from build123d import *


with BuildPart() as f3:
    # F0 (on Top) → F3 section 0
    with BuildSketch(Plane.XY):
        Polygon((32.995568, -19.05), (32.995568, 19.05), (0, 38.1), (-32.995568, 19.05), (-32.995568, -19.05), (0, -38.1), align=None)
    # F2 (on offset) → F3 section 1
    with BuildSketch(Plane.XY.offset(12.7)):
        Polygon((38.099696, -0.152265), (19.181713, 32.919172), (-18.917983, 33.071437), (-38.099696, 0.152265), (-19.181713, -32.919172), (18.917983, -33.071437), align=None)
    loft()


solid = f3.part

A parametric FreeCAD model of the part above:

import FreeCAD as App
import Part
import Sketcher
Q = App.Units.Quantity


def add_polygon(sketch, points):
    """Adds a closed chain of lines whose ends are joined by coincident constraints."""
    first, n = sketch.GeometryCount, len(points)
    for a, b in zip(points, points[1:] + points[:1]):
        sketch.addGeometry(Part.LineSegment(App.Vector(*a, 0), App.Vector(*b, 0)), False)
    for i in range(n):
        sketch.addConstraint(Sketcher.Constraint("Coincident", first + i, 2, first + (i + 1) % n, 1))

doc = App.newDocument("Part")
body = doc.addObject("PartDesign::Body", "Body")

# Sketch on XY plane
sketch1 = body.newObject("Sketcher::SketchObject", "Sketch")
sketch1.AttachmentSupport = (doc.getObject("XY_Plane"), [""])
sketch1.MapMode = "FlatFace"
add_polygon(sketch1, [(33, -19), (33, 19), (0, 38), (-33, 19), (-33, -19), (0, -38)])  # lines 0-5
sketch1.addConstraint(Sketcher.Constraint("Vertical", 0))
sketch1.addConstraint(Sketcher.Constraint("Vertical", 3))
sketch1.addConstraint(Sketcher.Constraint("Symmetric", 0, 2, 3, 2, -1, 1))
sketch1.addConstraint(Sketcher.Constraint("Symmetric", 1, 2, 4, 2, -1, 1))
sketch1.addConstraint(Sketcher.Constraint("PointOnObject", 1, 2, -2))
sketch1.addConstraint(Sketcher.Constraint("Parallel", 2, 5))
sketch1.addConstraint(Sketcher.Constraint("Horizontal", 0, 2, 2, 2))
sketch1.addConstraint(Sketcher.Constraint("DistanceY", 0, 1, 0, 2, Q("1.5 in")))
sketch1.addConstraint(Sketcher.Constraint("Angle", 1, Q("150 deg")))
sketch1.addConstraint(Sketcher.Constraint("DistanceY", 4, 2, 1, 2, Q("3 in")))

# Sketch on XY plane
sketch2 = body.newObject("Sketcher::SketchObject", "Sketch001")
sketch2.AttachmentSupport = (doc.getObject("XY_Plane"), [""])
sketch2.MapMode = "FlatFace"
sketch2.AttachmentOffset = App.Placement(App.Vector(0, 0, 0.5 * 25.4), App.Rotation())
add_polygon(sketch2, [(38, 0), (19, 33), (-19, 33), (-38, 0), (-19, -33), (19, -33)])  # lines 0-5
sketch2.addConstraint(Sketcher.Constraint("Symmetric", 0, 2, 3, 2, -1, 1))
sketch2.addConstraint(Sketcher.Constraint("Symmetric", 1, 2, 4, 2, -1, 1))
sketch2.addConstraint(Sketcher.Constraint("Symmetric", 2, 2, 5, 2, -1, 1))
sketch2.addConstraint(Sketcher.Constraint("Equal", 0, 1))
sketch2.addConstraint(Sketcher.Constraint("Equal", 1, 2))
sketch2.addConstraint(Sketcher.Constraint("Distance", 0, Q("1.5 in")))
sketch2.addConstraint(Sketcher.Constraint("DistanceX", 2, 2, 0, 2, 57.281409))
sketch2.addConstraint(Sketcher.Constraint("DistanceX", 3, 2, 1, 2, 0.26373))
sketch2.addConstraint(Sketcher.Constraint("DistanceY", 5, 2, 2, 2, 0.30453))

additiveloft = body.newObject("PartDesign::AdditiveLoft", "AdditiveLoft")
additiveloft.Profile = sketch1
additiveloft.Sections = [sketch2]

doc.recompute()
